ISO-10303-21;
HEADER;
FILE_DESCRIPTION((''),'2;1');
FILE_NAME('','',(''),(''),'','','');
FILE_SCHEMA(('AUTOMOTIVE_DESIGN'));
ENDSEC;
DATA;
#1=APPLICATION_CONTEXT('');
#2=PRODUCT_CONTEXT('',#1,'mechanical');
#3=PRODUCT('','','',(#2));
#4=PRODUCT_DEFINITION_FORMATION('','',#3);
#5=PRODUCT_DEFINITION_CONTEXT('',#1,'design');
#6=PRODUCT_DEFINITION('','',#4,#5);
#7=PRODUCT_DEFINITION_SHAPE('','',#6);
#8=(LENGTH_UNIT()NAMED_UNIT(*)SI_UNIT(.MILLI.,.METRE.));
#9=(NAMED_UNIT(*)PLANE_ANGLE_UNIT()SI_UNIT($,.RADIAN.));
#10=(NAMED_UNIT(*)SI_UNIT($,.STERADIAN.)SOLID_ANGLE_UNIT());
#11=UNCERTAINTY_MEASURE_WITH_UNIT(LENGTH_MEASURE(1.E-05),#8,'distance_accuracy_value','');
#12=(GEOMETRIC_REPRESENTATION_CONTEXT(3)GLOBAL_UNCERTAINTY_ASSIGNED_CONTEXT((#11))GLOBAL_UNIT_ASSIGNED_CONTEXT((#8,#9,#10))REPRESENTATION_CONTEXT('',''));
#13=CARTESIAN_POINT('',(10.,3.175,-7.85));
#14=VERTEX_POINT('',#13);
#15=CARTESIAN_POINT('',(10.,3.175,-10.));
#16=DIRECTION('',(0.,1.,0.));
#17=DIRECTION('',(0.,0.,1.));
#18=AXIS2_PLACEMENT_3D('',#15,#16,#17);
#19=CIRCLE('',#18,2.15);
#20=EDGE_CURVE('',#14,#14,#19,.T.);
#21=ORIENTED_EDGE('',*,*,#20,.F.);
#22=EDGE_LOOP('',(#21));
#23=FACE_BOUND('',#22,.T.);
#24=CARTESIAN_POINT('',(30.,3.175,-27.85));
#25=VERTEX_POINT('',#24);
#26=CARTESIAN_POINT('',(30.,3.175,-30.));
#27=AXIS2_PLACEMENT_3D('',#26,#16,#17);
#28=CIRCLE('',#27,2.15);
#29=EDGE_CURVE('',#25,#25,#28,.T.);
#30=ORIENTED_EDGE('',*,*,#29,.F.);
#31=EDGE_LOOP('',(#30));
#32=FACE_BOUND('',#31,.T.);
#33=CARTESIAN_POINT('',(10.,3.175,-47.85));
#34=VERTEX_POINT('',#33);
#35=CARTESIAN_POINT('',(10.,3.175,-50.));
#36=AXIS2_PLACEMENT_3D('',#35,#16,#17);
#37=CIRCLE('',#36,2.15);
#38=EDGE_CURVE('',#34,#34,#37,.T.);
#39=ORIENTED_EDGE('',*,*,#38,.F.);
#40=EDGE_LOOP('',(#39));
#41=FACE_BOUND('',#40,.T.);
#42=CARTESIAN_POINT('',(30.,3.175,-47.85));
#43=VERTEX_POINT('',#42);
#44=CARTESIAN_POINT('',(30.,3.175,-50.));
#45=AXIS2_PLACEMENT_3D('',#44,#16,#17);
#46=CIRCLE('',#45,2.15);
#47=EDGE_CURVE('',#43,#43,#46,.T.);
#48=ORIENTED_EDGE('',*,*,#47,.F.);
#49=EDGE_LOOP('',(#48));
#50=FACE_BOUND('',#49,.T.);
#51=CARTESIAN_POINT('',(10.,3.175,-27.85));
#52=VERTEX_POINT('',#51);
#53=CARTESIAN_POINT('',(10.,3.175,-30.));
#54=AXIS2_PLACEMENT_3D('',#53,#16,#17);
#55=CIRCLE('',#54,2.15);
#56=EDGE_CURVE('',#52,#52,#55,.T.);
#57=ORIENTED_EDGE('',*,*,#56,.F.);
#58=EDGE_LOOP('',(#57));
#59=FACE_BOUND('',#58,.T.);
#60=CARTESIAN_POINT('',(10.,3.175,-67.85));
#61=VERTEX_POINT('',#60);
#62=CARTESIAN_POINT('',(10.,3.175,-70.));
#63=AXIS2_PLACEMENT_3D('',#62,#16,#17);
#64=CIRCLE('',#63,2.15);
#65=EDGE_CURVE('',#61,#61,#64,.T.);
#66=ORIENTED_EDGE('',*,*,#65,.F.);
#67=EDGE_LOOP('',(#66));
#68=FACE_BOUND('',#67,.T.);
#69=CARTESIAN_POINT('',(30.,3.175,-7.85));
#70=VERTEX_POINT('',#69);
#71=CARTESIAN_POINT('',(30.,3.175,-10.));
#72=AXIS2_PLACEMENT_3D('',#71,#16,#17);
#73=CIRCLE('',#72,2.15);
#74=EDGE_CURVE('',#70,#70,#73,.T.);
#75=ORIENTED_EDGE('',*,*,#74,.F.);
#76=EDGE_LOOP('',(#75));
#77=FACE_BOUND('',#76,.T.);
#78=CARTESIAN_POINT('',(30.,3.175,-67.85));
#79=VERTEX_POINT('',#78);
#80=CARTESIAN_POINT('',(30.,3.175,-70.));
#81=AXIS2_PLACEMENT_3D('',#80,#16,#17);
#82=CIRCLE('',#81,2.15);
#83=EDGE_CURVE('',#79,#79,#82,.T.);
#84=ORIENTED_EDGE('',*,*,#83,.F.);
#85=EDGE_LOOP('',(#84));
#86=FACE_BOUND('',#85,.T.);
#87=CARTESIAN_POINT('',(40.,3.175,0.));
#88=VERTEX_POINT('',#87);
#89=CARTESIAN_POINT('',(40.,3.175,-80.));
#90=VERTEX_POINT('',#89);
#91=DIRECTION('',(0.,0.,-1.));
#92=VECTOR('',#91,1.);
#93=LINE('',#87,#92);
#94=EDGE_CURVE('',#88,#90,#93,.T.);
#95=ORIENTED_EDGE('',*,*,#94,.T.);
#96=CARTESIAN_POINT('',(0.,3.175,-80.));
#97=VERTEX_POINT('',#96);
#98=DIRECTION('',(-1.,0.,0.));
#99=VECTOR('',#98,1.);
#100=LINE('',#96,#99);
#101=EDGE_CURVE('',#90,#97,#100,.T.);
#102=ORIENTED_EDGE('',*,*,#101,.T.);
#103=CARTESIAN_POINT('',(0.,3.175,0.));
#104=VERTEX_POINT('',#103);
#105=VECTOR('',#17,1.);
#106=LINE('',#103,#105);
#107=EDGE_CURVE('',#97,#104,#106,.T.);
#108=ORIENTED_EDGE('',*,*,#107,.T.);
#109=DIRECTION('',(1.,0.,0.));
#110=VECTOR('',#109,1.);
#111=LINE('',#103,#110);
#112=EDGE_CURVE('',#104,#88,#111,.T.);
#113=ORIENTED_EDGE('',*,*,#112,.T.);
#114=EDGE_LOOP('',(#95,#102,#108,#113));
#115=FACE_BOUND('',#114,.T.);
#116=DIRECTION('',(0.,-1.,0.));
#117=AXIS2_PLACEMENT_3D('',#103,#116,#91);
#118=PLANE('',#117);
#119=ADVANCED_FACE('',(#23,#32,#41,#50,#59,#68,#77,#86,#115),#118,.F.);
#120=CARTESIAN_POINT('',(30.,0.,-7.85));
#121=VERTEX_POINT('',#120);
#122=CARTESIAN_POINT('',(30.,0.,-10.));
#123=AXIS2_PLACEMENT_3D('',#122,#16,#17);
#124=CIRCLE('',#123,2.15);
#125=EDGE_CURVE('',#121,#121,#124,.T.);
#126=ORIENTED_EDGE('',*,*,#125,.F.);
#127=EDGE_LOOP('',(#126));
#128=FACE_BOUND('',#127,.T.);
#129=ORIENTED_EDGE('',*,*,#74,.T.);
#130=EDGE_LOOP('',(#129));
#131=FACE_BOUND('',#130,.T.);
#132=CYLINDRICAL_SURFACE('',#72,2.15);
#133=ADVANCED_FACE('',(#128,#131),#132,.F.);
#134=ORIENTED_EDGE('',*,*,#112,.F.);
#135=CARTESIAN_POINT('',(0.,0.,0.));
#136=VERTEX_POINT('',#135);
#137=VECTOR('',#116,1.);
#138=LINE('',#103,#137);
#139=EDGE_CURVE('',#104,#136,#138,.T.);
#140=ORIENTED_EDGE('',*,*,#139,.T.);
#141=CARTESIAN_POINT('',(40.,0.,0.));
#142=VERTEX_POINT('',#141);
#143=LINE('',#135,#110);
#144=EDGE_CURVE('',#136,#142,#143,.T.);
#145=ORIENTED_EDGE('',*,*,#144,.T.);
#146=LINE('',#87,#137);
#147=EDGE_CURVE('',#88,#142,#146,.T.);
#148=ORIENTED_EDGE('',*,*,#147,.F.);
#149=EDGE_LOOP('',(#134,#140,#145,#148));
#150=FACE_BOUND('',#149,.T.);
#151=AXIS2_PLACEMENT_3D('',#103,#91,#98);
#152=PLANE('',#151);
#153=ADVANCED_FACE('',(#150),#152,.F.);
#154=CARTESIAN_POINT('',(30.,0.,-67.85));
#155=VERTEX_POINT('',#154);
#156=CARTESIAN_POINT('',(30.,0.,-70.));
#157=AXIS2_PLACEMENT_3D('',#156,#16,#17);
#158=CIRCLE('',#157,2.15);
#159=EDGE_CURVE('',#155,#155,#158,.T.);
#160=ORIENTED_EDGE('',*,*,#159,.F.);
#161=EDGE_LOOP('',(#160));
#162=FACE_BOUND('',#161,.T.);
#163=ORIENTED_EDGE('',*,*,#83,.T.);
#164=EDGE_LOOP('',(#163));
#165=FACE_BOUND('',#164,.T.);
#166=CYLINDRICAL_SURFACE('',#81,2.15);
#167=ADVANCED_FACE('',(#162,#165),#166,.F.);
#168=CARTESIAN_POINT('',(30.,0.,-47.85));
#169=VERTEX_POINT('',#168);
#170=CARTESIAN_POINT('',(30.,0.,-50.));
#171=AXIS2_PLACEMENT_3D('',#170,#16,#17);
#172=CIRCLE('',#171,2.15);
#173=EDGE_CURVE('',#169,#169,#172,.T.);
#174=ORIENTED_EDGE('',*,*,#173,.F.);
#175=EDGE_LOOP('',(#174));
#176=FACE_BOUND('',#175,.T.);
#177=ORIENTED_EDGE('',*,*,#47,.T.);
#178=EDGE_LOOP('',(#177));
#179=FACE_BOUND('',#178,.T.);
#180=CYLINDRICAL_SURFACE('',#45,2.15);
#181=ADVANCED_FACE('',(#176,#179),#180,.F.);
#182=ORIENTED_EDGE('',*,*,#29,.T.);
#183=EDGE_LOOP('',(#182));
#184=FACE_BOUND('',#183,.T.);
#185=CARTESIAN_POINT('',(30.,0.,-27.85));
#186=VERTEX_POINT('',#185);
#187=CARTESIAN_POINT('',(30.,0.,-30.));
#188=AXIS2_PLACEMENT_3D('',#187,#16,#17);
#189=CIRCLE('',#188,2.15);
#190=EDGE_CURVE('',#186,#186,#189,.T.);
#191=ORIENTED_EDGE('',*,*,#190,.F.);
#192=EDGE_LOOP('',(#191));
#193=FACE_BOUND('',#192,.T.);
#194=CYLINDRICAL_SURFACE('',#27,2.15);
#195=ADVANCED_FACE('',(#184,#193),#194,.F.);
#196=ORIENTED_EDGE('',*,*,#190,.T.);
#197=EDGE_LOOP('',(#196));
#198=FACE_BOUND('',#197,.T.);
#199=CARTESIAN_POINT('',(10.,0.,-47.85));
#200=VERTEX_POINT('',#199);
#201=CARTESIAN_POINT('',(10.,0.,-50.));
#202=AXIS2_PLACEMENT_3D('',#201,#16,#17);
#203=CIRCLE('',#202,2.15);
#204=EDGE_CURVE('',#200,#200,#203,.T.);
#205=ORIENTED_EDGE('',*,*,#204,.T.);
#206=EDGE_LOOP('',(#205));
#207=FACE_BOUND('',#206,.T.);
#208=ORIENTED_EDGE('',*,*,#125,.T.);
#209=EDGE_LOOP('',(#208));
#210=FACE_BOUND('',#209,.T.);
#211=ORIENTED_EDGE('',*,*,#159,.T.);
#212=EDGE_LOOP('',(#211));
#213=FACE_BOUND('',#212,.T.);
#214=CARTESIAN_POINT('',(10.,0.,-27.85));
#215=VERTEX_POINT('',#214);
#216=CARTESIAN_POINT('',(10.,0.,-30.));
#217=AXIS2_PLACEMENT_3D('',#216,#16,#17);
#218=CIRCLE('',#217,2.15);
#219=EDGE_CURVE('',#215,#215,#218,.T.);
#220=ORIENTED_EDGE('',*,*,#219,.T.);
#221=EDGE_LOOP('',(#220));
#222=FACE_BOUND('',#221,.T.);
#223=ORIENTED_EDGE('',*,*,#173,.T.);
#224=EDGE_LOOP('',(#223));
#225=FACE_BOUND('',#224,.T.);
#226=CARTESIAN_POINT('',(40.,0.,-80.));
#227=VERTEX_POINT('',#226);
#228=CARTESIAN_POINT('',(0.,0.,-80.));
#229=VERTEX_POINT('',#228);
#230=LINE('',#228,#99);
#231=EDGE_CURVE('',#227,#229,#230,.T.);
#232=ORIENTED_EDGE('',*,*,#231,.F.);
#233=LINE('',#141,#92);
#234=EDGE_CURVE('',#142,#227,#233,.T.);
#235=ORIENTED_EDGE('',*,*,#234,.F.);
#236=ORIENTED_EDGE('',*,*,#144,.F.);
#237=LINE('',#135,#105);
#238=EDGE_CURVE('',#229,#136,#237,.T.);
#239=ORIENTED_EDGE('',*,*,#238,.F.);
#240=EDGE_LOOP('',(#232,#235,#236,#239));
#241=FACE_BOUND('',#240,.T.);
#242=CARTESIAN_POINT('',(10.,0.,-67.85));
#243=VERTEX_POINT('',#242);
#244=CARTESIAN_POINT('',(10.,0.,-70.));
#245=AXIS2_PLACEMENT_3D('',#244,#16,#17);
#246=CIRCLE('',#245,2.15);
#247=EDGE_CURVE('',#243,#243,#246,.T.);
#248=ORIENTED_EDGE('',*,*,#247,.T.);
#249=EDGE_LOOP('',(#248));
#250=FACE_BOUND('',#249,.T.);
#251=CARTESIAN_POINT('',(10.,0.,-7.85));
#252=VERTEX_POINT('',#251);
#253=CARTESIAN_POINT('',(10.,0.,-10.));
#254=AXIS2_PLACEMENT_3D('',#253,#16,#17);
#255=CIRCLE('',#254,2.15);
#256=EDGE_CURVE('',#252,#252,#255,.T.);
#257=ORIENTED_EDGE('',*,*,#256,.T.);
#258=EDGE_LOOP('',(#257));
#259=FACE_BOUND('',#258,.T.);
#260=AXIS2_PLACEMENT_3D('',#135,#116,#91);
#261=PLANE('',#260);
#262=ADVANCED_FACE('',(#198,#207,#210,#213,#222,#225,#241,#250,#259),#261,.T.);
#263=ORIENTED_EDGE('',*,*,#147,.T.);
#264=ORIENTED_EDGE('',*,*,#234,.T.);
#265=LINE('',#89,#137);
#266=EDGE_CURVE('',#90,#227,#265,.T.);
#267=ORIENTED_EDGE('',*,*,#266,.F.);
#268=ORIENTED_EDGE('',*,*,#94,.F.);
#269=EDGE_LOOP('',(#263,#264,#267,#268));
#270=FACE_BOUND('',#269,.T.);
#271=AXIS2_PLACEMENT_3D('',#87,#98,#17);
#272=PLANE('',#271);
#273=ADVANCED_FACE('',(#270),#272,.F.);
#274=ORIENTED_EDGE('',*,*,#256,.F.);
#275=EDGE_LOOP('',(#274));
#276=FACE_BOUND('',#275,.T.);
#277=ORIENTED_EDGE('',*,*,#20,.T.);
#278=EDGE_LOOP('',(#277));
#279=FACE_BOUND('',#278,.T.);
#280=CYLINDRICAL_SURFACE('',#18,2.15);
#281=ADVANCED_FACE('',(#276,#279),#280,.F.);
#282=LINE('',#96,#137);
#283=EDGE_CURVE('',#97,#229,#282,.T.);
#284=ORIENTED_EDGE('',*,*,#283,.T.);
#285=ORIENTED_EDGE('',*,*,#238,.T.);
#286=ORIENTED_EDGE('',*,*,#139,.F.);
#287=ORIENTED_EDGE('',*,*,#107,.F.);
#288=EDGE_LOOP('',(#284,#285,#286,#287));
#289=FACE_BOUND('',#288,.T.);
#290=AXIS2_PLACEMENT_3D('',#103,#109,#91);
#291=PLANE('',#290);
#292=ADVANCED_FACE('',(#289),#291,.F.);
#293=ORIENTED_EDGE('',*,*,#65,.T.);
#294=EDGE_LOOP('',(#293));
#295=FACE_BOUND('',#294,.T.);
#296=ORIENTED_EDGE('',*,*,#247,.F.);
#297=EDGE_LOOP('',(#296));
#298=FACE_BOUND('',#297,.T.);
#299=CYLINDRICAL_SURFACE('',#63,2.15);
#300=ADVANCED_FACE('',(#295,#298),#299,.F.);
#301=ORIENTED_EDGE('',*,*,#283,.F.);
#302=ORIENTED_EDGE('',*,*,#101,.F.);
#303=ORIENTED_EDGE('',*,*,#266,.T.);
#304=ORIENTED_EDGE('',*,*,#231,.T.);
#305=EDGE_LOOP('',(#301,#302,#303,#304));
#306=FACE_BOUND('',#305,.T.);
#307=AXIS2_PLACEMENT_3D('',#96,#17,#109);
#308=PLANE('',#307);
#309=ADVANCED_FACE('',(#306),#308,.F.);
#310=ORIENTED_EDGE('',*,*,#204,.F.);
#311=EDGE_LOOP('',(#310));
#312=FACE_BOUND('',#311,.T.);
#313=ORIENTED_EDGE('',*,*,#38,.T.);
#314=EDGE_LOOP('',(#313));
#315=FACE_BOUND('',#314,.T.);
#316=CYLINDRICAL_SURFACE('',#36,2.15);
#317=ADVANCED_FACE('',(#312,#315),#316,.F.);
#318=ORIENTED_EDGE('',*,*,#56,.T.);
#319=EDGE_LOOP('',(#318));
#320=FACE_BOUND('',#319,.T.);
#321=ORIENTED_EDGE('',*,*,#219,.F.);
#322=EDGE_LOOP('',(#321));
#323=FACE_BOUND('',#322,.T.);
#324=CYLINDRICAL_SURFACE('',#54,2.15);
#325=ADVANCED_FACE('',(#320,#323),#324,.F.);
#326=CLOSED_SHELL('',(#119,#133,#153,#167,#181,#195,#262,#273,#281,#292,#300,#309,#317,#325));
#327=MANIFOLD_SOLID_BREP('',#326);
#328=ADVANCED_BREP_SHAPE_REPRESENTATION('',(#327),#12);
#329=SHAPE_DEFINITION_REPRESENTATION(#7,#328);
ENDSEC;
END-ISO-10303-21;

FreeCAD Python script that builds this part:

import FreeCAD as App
import Part
import Sketcher
from FreeCAD import Vector


def add_polygon(sketch, points):
    """Adds a closed chain of lines whose ends are joined by coincident constraints."""
    first, n = sketch.GeometryCount, len(points)
    for a, b in zip(points, points[1:] + points[:1]):
        sketch.addGeometry(Part.LineSegment(App.Vector(*a, 0), App.Vector(*b, 0)), False)
    for i in range(n):
        sketch.addConstraint(Sketcher.Constraint("Coincident", first + i, 2, first + (i + 1) % n, 1))

doc = App.newDocument("Part")
params = doc.addObject("Spreadsheet::Sheet", "Params")
for row, (alias, value) in enumerate([
    ("sketch1_width", "40 mm"),
    ("sketch1_height", "80 mm"),
    ("pad1_length", "3.175 mm"),
    ("sketch2_diameter", "4.3 mm"),
    ("hole_diameter", "4.3 mm"),
], start=1):
    params.set(f"A{row}", alias)
    params.set(f"B{row}", "=" + value)
    params.setAlias(f"B{row}", alias)

body = doc.addObject("PartDesign::Body", "Body")

# Sketch on XZ plane
sketch1 = body.newObject("Sketcher::SketchObject", "Sketch")
sketch1.AttachmentSupport = (doc.getObject("XZ_Plane"), [""])
sketch1.MapMode = "FlatFace"
add_polygon(sketch1, [(0, -80), (0, 0), (40, 0), (40, -80)])  # lines 0-3
sketch1.addConstraint([
    Sketcher.Constraint("Vertical", 0),
    Sketcher.Constraint("Horizontal", 1),
    Sketcher.Constraint("Vertical", 2),
    Sketcher.Constraint("Horizontal", 3),
    Sketcher.Constraint("Coincident", 0, 2, -1, 1),
    Sketcher.Constraint("DistanceX", 1, 1, 1, 2, 40.0),
    Sketcher.Constraint("DistanceY", 0, 1, 0, 2, 80.0),
])
sketch1.setExpression("Constraints[9]", "Params.sketch1_width")
sketch1.setExpression("Constraints[10]", "Params.sketch1_height")
pad1 = body.newObject("PartDesign::Pad", "Pad")
pad1.Profile = sketch1
pad1.setExpression("Length", "Params.pad1_length")
pad1.Reversed = True

# Sketch on XZ plane
sketch2 = body.newObject("Sketcher::SketchObject", "Sketch001")
sketch2.AttachmentSupport = (doc.getObject("XZ_Plane"), [""])
sketch2.MapMode = "FlatFace"
sketch2.AttachmentOffset = App.Placement(Vector(0, 0, -3.175), App.Rotation())
sketch2.addGeometry([
    Part.Circle(Vector(10, -70, 0), Vector(0, 0, 1), 2.1),  # 0
    Part.Circle(Vector(30, -70, 0), Vector(0, 0, 1), 2.1),  # 1
    Part.Circle(Vector(30, -50, 0), Vector(0, 0, 1), 2.1),  # 2
    Part.Circle(Vector(30, -30, 0), Vector(0, 0, 1), 2.1),  # 3
    Part.Circle(Vector(30, -10, 0), Vector(0, 0, 1), 2.1),  # 4
    Part.Circle(Vector(10, -50, 0), Vector(0, 0, 1), 2.1),  # 5
    Part.Circle(Vector(10, -30, 0), Vector(0, 0, 1), 2.1),  # 6
    Part.Circle(Vector(10, -10, 0), Vector(0, 0, 1), 2.1),  # 7
], False)
sketch2.addConstraint([
    Sketcher.Constraint("Equal", 0, 1),
    Sketcher.Constraint("Equal", 1, 2),
    Sketcher.Constraint("Equal", 2, 3),
    Sketcher.Constraint("Equal", 3, 4),
    Sketcher.Constraint("Equal", 4, 5),
    Sketcher.Constraint("Equal", 5, 6),
    Sketcher.Constraint("Equal", 6, 7),
    Sketcher.Constraint("Horizontal", 0, 3, 1, 3),
    Sketcher.Constraint("Horizontal", 2, 3, 5, 3),
    Sketcher.Constraint("Horizontal", 3, 3, 6, 3),
    Sketcher.Constraint("Horizontal", 4, 3, 7, 3),
    Sketcher.Constraint("Vertical", 1, 3, 2, 3),
    Sketcher.Constraint("Vertical", 2, 3, 3, 3),
    Sketcher.Constraint("Vertical", 3, 3, 4, 3),
    Sketcher.Constraint("Vertical", 0, 3, 5, 3),
    Sketcher.Constraint("Vertical", 5, 3, 6, 3),
    Sketcher.Constraint("Vertical", 6, 3, 7, 3),
    Sketcher.Constraint("Diameter", 0, 4.3),
    Sketcher.Constraint("DistanceX", -1, 1, 0, 3, 10.0),
    Sketcher.Constraint("DistanceY", 0, 3, -1, 1, 70.0),
    Sketcher.Constraint("DistanceX", -1, 1, 1, 3, 30.0),
    Sketcher.Constraint("DistanceY", 2, 3, -1, 1, 50.0),
    Sketcher.Constraint("DistanceY", 3, 3, -1, 1, 30.0),
    Sketcher.Constraint("DistanceY", 4, 3, -1, 1, 10.0),
])
sketch2.setExpression("Constraints[17]", "Params.sketch2_diameter")
doc.recompute()
hole = body.newObject("PartDesign::Hole", "Hole")
hole.Profile = sketch2
hole.ThreadType = "None"
hole.setExpression("Diameter", "Params.hole_diameter")
hole.DepthType = "ThroughAll"
hole.Reversed = True

doc.recompute()
